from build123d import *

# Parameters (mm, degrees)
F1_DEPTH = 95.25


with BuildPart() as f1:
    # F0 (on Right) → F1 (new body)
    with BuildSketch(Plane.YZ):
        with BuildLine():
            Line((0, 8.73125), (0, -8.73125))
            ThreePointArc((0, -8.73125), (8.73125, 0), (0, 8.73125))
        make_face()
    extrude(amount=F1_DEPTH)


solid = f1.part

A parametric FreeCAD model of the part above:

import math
import FreeCAD as App
import Part
import Sketcher
Q = App.Units.Quantity

doc = App.newDocument("Part")
params = doc.addObject("Spreadsheet::Sheet", "Params")
for row, (alias, value) in enumerate([
    ("sketch1_radius", "0.34375 in"),
    ("pad1_length", "3.75 in"),
], start=1):
    params.set(f"A{row}", alias)
    params.set(f"B{row}", "=" + value)
    params.setAlias(f"B{row}", alias)

body = doc.addObject("PartDesign::Body", "Body")

# Sketch on YZ plane
sketch1 = body.newObject("Sketcher::SketchObject", "Sketch")
sketch1.AttachmentSupport = (doc.getObject("YZ_Plane"), [""])
sketch1.MapMode = "FlatFace"
sketch1.addGeometry(Part.LineSegment(App.Vector(0, 9, 0), App.Vector(0, -9, 0)), False)
sketch1.addGeometry(Part.ArcOfCircle(Part.Circle(App.Vector(0, 0, 0), App.Vector(0, 0, 1), 9), math.radians(-90), math.radians(90)), False)
sketch1.addConstraint(Sketcher.Constraint("Coincident", 0, 1, 1, 2))
sketch1.addConstraint(Sketcher.Constraint("Coincident", 1, 1, 0, 2))
sketch1.addConstraint(Sketcher.Constraint("Vertical", 0))
sketch1.addConstraint(Sketcher.Constraint("Coincident", 1, 3, -1, 1))
sketch1.addConstraint(Sketcher.Constraint("PointOnObject", 0, 1, -2))
sketch1.addConstraint(Sketcher.Constraint("Radius", 1, Q("0.34375 in")))
sketch1.setExpression("Constraints[5]", "Params.sketch1_radius")
pad1 = body.newObject("PartDesign::Pad", "Pad")
pad1.Profile = sketch1
pad1.setExpression("Length", "Params.pad1_length")

doc.recompute()
